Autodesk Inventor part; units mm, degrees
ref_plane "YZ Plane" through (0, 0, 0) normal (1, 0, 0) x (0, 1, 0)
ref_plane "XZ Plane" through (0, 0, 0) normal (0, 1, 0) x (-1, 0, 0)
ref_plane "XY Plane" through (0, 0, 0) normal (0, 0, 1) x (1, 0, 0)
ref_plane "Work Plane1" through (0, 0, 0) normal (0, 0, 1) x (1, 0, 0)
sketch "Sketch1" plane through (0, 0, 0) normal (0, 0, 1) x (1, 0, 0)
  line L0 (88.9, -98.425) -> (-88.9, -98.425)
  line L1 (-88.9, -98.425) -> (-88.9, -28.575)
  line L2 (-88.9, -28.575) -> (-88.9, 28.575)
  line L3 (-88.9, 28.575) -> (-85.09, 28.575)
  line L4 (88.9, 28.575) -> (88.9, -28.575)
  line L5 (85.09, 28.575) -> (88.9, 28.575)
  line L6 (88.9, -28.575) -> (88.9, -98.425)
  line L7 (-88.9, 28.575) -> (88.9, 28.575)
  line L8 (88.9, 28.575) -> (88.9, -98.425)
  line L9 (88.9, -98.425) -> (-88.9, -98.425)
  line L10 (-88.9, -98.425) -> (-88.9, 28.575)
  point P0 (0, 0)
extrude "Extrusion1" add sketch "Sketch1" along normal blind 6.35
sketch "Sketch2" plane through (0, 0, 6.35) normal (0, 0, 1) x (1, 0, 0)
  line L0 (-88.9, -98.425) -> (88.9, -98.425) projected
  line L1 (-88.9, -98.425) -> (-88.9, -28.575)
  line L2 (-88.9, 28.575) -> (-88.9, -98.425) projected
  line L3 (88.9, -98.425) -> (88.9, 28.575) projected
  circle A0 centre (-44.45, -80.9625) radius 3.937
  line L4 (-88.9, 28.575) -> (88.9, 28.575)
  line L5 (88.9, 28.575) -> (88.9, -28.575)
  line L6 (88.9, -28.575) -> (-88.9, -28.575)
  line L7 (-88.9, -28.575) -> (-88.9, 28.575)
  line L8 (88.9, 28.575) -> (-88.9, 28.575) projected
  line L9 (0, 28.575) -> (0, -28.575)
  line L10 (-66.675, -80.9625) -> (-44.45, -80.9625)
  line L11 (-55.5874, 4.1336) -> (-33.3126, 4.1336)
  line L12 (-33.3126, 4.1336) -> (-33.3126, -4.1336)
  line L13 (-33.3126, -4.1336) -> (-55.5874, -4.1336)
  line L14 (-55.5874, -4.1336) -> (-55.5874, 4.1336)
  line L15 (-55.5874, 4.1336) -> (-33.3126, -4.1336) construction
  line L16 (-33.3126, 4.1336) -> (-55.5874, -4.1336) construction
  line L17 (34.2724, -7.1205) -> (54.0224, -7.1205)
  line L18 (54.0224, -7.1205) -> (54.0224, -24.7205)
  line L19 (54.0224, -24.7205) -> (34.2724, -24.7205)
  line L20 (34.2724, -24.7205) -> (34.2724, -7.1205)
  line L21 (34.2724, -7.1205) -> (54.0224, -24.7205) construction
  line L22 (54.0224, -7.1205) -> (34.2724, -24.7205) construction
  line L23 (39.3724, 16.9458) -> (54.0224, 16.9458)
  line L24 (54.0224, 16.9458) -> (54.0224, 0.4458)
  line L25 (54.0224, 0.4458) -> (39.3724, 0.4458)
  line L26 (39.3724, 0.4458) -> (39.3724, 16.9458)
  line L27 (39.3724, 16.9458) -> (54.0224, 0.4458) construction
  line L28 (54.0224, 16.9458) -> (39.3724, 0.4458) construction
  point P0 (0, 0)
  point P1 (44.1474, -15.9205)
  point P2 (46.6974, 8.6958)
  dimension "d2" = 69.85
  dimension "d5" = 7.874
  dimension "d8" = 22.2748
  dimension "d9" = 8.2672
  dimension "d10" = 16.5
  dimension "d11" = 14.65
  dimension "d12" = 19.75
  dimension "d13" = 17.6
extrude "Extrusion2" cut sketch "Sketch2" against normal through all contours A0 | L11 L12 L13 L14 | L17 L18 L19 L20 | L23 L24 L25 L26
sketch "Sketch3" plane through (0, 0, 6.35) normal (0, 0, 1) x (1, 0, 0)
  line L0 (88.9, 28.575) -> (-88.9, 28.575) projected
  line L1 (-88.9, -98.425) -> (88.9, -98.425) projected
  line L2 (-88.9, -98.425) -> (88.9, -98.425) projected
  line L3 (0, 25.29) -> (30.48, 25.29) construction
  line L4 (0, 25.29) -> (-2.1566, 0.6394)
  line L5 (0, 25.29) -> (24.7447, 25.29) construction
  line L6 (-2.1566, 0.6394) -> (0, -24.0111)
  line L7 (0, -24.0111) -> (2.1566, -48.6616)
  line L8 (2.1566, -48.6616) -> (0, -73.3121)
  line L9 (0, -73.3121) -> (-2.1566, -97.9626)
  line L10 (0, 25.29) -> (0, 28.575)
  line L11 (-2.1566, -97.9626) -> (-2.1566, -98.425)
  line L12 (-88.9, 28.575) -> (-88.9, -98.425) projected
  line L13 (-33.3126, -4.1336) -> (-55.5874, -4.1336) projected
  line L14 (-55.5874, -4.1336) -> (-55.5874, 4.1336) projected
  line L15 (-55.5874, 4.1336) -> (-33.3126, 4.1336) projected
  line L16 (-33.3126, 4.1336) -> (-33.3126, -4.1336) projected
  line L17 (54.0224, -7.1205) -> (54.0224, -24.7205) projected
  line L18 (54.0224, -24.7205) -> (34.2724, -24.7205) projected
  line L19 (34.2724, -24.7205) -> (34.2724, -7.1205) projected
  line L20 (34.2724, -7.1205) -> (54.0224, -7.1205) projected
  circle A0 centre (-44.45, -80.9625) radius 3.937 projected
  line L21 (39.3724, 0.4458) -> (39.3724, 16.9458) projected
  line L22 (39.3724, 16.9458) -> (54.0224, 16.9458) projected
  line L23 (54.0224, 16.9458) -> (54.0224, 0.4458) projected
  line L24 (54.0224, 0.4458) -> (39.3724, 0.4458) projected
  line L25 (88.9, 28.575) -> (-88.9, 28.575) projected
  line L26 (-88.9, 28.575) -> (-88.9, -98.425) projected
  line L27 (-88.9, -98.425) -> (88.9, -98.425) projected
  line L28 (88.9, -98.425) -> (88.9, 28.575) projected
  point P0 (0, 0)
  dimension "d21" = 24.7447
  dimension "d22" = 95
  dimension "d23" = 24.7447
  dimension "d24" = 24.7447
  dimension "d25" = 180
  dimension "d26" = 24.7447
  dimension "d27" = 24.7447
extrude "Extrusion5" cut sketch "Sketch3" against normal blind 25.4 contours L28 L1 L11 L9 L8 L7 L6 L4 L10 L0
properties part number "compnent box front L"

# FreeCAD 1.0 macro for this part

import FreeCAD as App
import Part
import Sketcher
from FreeCAD import Vector
Q = App.Units.Quantity

doc = App.newDocument("Part")
params = doc.addObject("Spreadsheet::Sheet", "Params")
for row, (alias, value) in enumerate([
    ("sketch1_width", "7 in"),
    ("sketch1_height", "5 in"),
    ("pad1_length", "0.25 in"),
    ("sketch2_diameter", "0.31 in"),
    ("sketch3_height", "5 in"),
    ("sketch3_width", "3.5 in"),
    ("pocket2_length", "1 in"),
], start=1):
    params.set(f"A{row}", alias)
    params.set(f"B{row}", "=" + value)
    params.setAlias(f"B{row}", alias)

body = doc.addObject("PartDesign::Body", "Body")

# Sketch on XY plane
sketch1 = body.newObject("Sketcher::SketchObject", "Sketch")
sketch1.AttachmentSupport = (doc.getObject("XY_Plane"), [""])
sketch1.MapMode = "FlatFace"
sketch1.addGeometry([
    Part.LineSegment(Vector(-89, -98, 0), Vector(89, -98, 0)),
    Part.LineSegment(Vector(89, -98, 0), Vector(89, 29, 0)),
    Part.LineSegment(Vector(89, 29, 0), Vector(-89, 29, 0)),
    Part.LineSegment(Vector(-89, 29, 0), Vector(-89, -98, 0)),
], False)
sketch1.addConstraint([
    Sketcher.Constraint("Coincident", 0, 2, 1, 1),
    Sketcher.Constraint("Coincident", 1, 2, 2, 1),
    Sketcher.Constraint("Coincident", 2, 2, 3, 1),
    Sketcher.Constraint("Coincident", 3, 2, 0, 1),
    Sketcher.Constraint("Horizontal", 0),
    Sketcher.Constraint("Vertical", 1),
    Sketcher.Constraint("Horizontal", 2),
    Sketcher.Constraint("Vertical", 3),
    Sketcher.Constraint("DistanceX", 0, 1, 0, 2, Q("7 in")),
    Sketcher.Constraint("DistanceY", 1, 1, 1, 2, Q("5 in")),
    Sketcher.Constraint("DistanceX", -1, 1, 0, 2, Q("3.5 in")),
    Sketcher.Constraint("DistanceY", 0, 2, -1, 1, Q("3.875 in")),
])
sketch1.setExpression("Constraints[8]", "Params.sketch1_width")
sketch1.setExpression("Constraints[9]", "Params.sketch1_height")
pad1 = body.newObject("PartDesign::Pad", "Pad")
pad1.Profile = sketch1
pad1.setExpression("Length", "Params.pad1_length")

# Sketch on XY plane
sketch2 = body.newObject("Sketcher::SketchObject", "Sketch001")
sketch2.AttachmentSupport = (doc.getObject("XY_Plane"), [""])
sketch2.MapMode = "FlatFace"
sketch2.AttachmentOffset = App.Placement(Vector(0, 0, 0.25 * 25.4), App.Rotation())
sketch2.addGeometry([
    Part.Circle(Vector(-44.5, -81, 0), Vector(0, 0, 1), 3.9),  # 0
    Part.LineSegment(Vector(-33.3, 4.1, 0), Vector(-55.6, 4.1, 0)),  # 1
    Part.LineSegment(Vector(-55.6, 4.1, 0), Vector(-55.6, -4.1, 0)),  # 2
    Part.LineSegment(Vector(-55.6, -4.1, 0), Vector(-33.3, -4.1, 0)),  # 3
    Part.LineSegment(Vector(-33.3, -4.1, 0), Vector(-33.3, 4.1, 0)),  # 4
    Part.LineSegment(Vector(54, -7.1, 0), Vector(34.3, -7.1, 0)),  # 5
    Part.LineSegment(Vector(34.3, -7.1, 0), Vector(34.3, -24.7, 0)),  # 6
    Part.LineSegment(Vector(34.3, -24.7, 0), Vector(54, -24.7, 0)),  # 7
    Part.LineSegment(Vector(54, -24.7, 0), Vector(54, -7.1, 0)),  # 8
    Part.LineSegment(Vector(54, 16.9, 0), Vector(39.4, 16.9, 0)),  # 9
    Part.LineSegment(Vector(39.4, 16.9, 0), Vector(39.4, 0.4, 0)),  # 10
    Part.LineSegment(Vector(39.4, 0.4, 0), Vector(54, 0.4, 0)),  # 11
    Part.LineSegment(Vector(54, 0.4, 0), Vector(54, 16.9, 0)),  # 12
], False)
sketch2.addConstraint([
    Sketcher.Constraint("Coincident", 1, 2, 2, 1),
    Sketcher.Constraint("Coincident", 2, 2, 3, 1),
    Sketcher.Constraint("Coincident", 3, 2, 4, 1),
    Sketcher.Constraint("Coincident", 4, 2, 1, 1),
    Sketcher.Constraint("Coincident", 5, 2, 6, 1),
    Sketcher.Constraint("Coincident", 6, 2, 7, 1),
    Sketcher.Constraint("Coincident", 7, 2, 8, 1),
    Sketcher.Constraint("Coincident", 8, 2, 5, 1),
    Sketcher.Constraint("Coincident", 9, 2, 10, 1),
    Sketcher.Constraint("Coincident", 10, 2, 11, 1),
    Sketcher.Constraint("Coincident", 11, 2, 12, 1),
    Sketcher.Constraint("Coincident", 12, 2, 9, 1),
    Sketcher.Constraint("Horizontal", 1),
    Sketcher.Constraint("Vertical", 2),
    Sketcher.Constraint("Horizontal", 3),
    Sketcher.Constraint("Vertical", 4),
    Sketcher.Constraint("Horizontal", 5),
    Sketcher.Constraint("Vertical", 6),
    Sketcher.Constraint("Horizontal", 7),
    Sketcher.Constraint("Vertical", 8),
    Sketcher.Constraint("Horizontal", 9),
    Sketcher.Constraint("Vertical", 10),
    Sketcher.Constraint("Horizontal", 11),
    Sketcher.Constraint("Vertical", 12),
    Sketcher.Constraint("Vertical", 8, 2, 11, 2),
    Sketcher.Constraint("Diameter", 0, Q("0.31 in")),
    Sketcher.Constraint("DistanceY", 10, 2, 10, 1, Q("0.6496 in")),
    Sketcher.Constraint("DistanceX", 1, 2, 1, 1, 22.2748),
    Sketcher.Constraint("DistanceX", 5, 2, 5, 1, 19.75),
    Sketcher.Constraint("DistanceX", 9, 2, 9, 1, 14.65),
    Sketcher.Constraint("DistanceY", 2, 2, 2, 1, 8.2672),
    Sketcher.Constraint("DistanceY", 6, 2, 6, 1, 17.6),
    Sketcher.Constraint("DistanceX", 0, 3, -1, 1, Q("1.75 in")),
    Sketcher.Constraint("DistanceY", 0, 3, -1, 1, Q("3.1875 in")),
    Sketcher.Constraint("DistanceY", 6, 2, 4, 2, Q("1.136 in")),
    Sketcher.Constraint("DistanceX", -1, 1, 5, 2, Q("1.3493 in")),
    Sketcher.Constraint("DistanceY", 5, 2, 9, 2, Q("0.9475 in")),
    Sketcher.Constraint("DistanceX", 1, 2, -1, 1, 55.5874),
    Sketcher.Constraint("DistanceY", -1, 1, 1, 2, 4.1336),
])
sketch2.setExpression("Constraints[25]", "Params.sketch2_diameter")
pocket1 = body.newObject("PartDesign::Pocket", "Pocket")
pocket1.Profile = sketch2
pocket1.Type = "ThroughAll"

# Sketch on XY plane
sketch3 = body.newObject("Sketcher::SketchObject", "Sketch002")
sketch3.AttachmentSupport = (doc.getObject("XY_Plane"), [""])
sketch3.MapMode = "FlatFace"
sketch3.AttachmentOffset = App.Placement(Vector(0, 0, 0.25 * 25.4), App.Rotation())
sketch3.addGeometry([
    Part.LineSegment(Vector(88.9, -98.42, 0), Vector(88.9, 28.57, 0)),  # 0
    Part.LineSegment(Vector(88.9, 28.57, 0), Vector(0, 28.57, 0)),  # 1
    Part.LineSegment(Vector(0, 28.57, 0), Vector(0, 25.29, 0)),  # 2
    Part.LineSegment(Vector(0, 25.29, 0), Vector(-2.16, 0.64, 0)),  # 3
    Part.LineSegment(Vector(-2.16, 0.64, 0), Vector(2.16, -48.66, 0)),  # 4
    Part.LineSegment(Vector(2.16, -48.66, 0), Vector(-2.16, -97.96, 0)),  # 5
    Part.LineSegment(Vector(-2.16, -97.96, 0), Vector(-2.16, -98.42, 0)),  # 6
    Part.LineSegment(Vector(-2.16, -98.42, 0), Vector(88.9, -98.42, 0)),  # 7
    Part.LineSegment(Vector(34.27, -7.12, 0), Vector(54.02, -7.12, 0)),  # 8
    Part.LineSegment(Vector(54.02, -7.12, 0), Vector(54.02, -24.72, 0)),  # 9
    Part.LineSegment(Vector(54.02, -24.72, 0), Vector(34.27, -24.72, 0)),  # 10
    Part.LineSegment(Vector(34.27, -24.72, 0), Vector(34.27, -7.12, 0)),  # 11
    Part.LineSegment(Vector(54.02, 0.45, 0), Vector(39.37, 0.45, 0)),  # 12
    Part.LineSegment(Vector(39.37, 0.45, 0), Vector(39.37, 16.95, 0)),  # 13
    Part.LineSegment(Vector(39.37, 16.95, 0), Vector(54.02, 16.95, 0)),  # 14
    Part.LineSegment(Vector(54.02, 16.95, 0), Vector(54.02, 0.45, 0)),  # 15
], False)
sketch3.addConstraint([
    Sketcher.Constraint("Coincident", 0, 2, 1, 1),
    Sketcher.Constraint("Coincident", 1, 2, 2, 1),
    Sketcher.Constraint("Coincident", 2, 2, 3, 1),
    Sketcher.Constraint("Coincident", 3, 2, 4, 1),
    Sketcher.Constraint("Coincident", 4, 2, 5, 1),
    Sketcher.Constraint("Coincident", 5, 2, 6, 1),
    Sketcher.Constraint("Coincident", 6, 2, 7, 1),
    Sketcher.Constraint("Coincident", 7, 2, 0, 1),
    Sketcher.Constraint("Coincident", 8, 2, 9, 1),
    Sketcher.Constraint("Coincident", 9, 2, 10, 1),
    Sketcher.Constraint("Coincident", 10, 2, 11, 1),
    Sketcher.Constraint("Coincident", 11, 2, 8, 1),
    Sketcher.Constraint("Coincident", 12, 2, 13, 1),
    Sketcher.Constraint("Coincident", 13, 2, 14, 1),
    Sketcher.Constraint("Coincident", 14, 2, 15, 1),
    Sketcher.Constraint("Coincident", 15, 2, 12, 1),
    Sketcher.Constraint("Vertical", 0),
    Sketcher.Constraint("Horizontal", 1),
    Sketcher.Constraint("Vertical", 2),
    Sketcher.Constraint("Vertical", 6),
    Sketcher.Constraint("Horizontal", 7),
    Sketcher.Constraint("Horizontal", 8),
    Sketcher.Constraint("Vertical", 9),
    Sketcher.Constraint("Horizontal", 10),
    Sketcher.Constraint("Vertical", 11),
    Sketcher.Constraint("Horizontal", 12),
    Sketcher.Constraint("Vertical", 13),
    Sketcher.Constraint("Horizontal", 14),
    Sketcher.Constraint("Vertical", 15),
    Sketcher.Constraint("PointOnObject", 1, 2, -2),
    Sketcher.Constraint("Parallel", 3, 5),
    Sketcher.Constraint("Vertical", 3, 2, 5, 2),
    Sketcher.Constraint("Vertical", 9, 2, 14, 2),
    Sketcher.Constraint("Equal", 4, 5),
    Sketcher.Constraint("Angle", 3, Q("-95 deg")),
    Sketcher.Constraint("DistanceY", 0, 1, 0, 2, Q("5 in")),
    Sketcher.Constraint("DistanceX", 1, 2, 1, 1, Q("3.5 in")),
    Sketcher.Constraint("Distance", 3, Q("0.9742 in")),
    Sketcher.Constraint("DistanceY", 6, 2, 6, 1, Q("0.0182 in")),
    Sketcher.Constraint("DistanceY", 13, 1, 13, 2, Q("0.6496 in")),
    Sketcher.Constraint("DistanceY", -1, 1, 0, 2, Q("1.125 in")),
    Sketcher.Constraint("DistanceY", 8, 2, 2, 2, Q("1.276 in")),
    Sketcher.Constraint("DistanceX", 3, 2, 12, 2, Q("1.635 in")),
    Sketcher.Constraint("Distance", 4, Q("1.9484 in")),
    Sketcher.Constraint("DistanceX", 8, 1, 8, 2, 19.75),
    Sketcher.Constraint("DistanceX", 12, 2, 12, 1, 14.65),
    Sketcher.Constraint("DistanceY", 9, 2, 9, 1, 17.6),
    Sketcher.Constraint("DistanceY", 10, 2, 12, 2, Q("0.9908 in")),
])
sketch3.setExpression("Constraints[35]", "Params.sketch3_height")
sketch3.setExpression("Constraints[36]", "Params.sketch3_width")
pocket2 = body.newObject("PartDesign::Pocket", "Pocket001")
pocket2.Profile = sketch3
pocket2.setExpression("Length", "Params.pocket2_length")

doc.recompute()
